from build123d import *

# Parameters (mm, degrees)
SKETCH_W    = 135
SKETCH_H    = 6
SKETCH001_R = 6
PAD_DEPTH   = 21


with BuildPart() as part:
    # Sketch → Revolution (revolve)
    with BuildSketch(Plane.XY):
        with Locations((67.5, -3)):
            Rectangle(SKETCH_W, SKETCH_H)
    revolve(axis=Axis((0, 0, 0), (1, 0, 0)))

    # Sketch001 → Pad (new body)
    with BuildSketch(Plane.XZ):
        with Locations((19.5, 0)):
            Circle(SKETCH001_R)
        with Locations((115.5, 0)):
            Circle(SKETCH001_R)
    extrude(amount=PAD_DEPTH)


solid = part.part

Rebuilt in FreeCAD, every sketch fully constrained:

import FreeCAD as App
import Part
import Sketcher

V = App.Vector
Q = App.Units.Quantity


def add_polygon(sketch, points):
    """Adds a closed chain of lines whose ends are joined by coincident constraints."""
    first, n = sketch.GeometryCount, len(points)
    for a, b in zip(points, points[1:] + points[:1]):
        sketch.addGeometry(Part.LineSegment(App.Vector(*a, 0), App.Vector(*b, 0)), False)
    for i in range(n):
        sketch.addConstraint(Sketcher.Constraint("Coincident", first + i, 2, first + (i + 1) % n, 1))

doc = App.newDocument("Part")
params = doc.addObject("Spreadsheet::Sheet", "Params")
for row, (alias, value) in enumerate([
    ("sketch1_width", "135 mm"),
    ("sketch1_height", "6 mm"),
    ("revolution_angle", "360 deg"),
    ("sketch2_diameter", "12 mm"),
    ("pad1_length", "21 mm"),
], start=1):
    params.set(f"A{row}", alias)
    params.set(f"B{row}", "=" + value)
    params.setAlias(f"B{row}", alias)

body = doc.addObject("PartDesign::Body", "Body")

# Sketch on XY plane
sketch1 = body.newObject("Sketcher::SketchObject", "Sketch")
sketch1.AttachmentSupport = (doc.getObject("XY_Plane"), [""])
sketch1.MapMode = "FlatFace"
add_polygon(sketch1, [(0, 0), (0, -6), (135, -6), (135, 0)])  # lines 0-3
sketch1.addConstraint([
    Sketcher.Constraint("Vertical", 0),
    Sketcher.Constraint("Horizontal", 1),
    Sketcher.Constraint("Vertical", 2),
    Sketcher.Constraint("Horizontal", 3),
    Sketcher.Constraint("Coincident", 3, 2, -1, 1),
    Sketcher.Constraint("DistanceX", 1, 1, 1, 2, Q("135 mm")),
    Sketcher.Constraint("DistanceY", 0, 2, 0, 1, Q("6 mm")),
])
sketch1.setExpression("Constraints[9]", "Params.sketch1_width")
sketch1.setExpression("Constraints[10]", "Params.sketch1_height")
revolution = body.newObject("PartDesign::Revolution", "Revolution")
revolution.Profile = sketch1
revolution.ReferenceAxis = (sketch1, ["H_Axis"])
revolution.setExpression("Angle", "Params.revolution_angle")

# Sketch on XZ plane
sketch2 = body.newObject("Sketcher::SketchObject", "Sketch001")
sketch2.AttachmentSupport = (doc.getObject("XZ_Plane"), [""])
sketch2.MapMode = "FlatFace"
sketch2.addGeometry([
    Part.Circle(V(19.5, 0, 0), V(0, 0, 1), 6),
    Part.Circle(V(115.5, 0, 0), V(0, 0, 1), 6),
], False)
sketch2.addConstraint([
    Sketcher.Constraint("Equal", 0, 1),
    Sketcher.Constraint("PointOnObject", 0, 3, -1),
    Sketcher.Constraint("PointOnObject", 1, 3, -1),
    Sketcher.Constraint("Diameter", 0, Q("12 mm")),
    Sketcher.Constraint("DistanceX", 0, 3, 1, 3, Q("96 mm")),
    Sketcher.Constraint("DistanceX", -1, 1, 0, 3, Q("19.5 mm")),
])
sketch2.setExpression("Constraints[3]", "Params.sketch2_diameter")
pad1 = body.newObject("PartDesign::Pad", "Pad")
pad1.Profile = sketch2
pad1.setExpression("Length", "Params.pad1_length")

doc.recompute()
